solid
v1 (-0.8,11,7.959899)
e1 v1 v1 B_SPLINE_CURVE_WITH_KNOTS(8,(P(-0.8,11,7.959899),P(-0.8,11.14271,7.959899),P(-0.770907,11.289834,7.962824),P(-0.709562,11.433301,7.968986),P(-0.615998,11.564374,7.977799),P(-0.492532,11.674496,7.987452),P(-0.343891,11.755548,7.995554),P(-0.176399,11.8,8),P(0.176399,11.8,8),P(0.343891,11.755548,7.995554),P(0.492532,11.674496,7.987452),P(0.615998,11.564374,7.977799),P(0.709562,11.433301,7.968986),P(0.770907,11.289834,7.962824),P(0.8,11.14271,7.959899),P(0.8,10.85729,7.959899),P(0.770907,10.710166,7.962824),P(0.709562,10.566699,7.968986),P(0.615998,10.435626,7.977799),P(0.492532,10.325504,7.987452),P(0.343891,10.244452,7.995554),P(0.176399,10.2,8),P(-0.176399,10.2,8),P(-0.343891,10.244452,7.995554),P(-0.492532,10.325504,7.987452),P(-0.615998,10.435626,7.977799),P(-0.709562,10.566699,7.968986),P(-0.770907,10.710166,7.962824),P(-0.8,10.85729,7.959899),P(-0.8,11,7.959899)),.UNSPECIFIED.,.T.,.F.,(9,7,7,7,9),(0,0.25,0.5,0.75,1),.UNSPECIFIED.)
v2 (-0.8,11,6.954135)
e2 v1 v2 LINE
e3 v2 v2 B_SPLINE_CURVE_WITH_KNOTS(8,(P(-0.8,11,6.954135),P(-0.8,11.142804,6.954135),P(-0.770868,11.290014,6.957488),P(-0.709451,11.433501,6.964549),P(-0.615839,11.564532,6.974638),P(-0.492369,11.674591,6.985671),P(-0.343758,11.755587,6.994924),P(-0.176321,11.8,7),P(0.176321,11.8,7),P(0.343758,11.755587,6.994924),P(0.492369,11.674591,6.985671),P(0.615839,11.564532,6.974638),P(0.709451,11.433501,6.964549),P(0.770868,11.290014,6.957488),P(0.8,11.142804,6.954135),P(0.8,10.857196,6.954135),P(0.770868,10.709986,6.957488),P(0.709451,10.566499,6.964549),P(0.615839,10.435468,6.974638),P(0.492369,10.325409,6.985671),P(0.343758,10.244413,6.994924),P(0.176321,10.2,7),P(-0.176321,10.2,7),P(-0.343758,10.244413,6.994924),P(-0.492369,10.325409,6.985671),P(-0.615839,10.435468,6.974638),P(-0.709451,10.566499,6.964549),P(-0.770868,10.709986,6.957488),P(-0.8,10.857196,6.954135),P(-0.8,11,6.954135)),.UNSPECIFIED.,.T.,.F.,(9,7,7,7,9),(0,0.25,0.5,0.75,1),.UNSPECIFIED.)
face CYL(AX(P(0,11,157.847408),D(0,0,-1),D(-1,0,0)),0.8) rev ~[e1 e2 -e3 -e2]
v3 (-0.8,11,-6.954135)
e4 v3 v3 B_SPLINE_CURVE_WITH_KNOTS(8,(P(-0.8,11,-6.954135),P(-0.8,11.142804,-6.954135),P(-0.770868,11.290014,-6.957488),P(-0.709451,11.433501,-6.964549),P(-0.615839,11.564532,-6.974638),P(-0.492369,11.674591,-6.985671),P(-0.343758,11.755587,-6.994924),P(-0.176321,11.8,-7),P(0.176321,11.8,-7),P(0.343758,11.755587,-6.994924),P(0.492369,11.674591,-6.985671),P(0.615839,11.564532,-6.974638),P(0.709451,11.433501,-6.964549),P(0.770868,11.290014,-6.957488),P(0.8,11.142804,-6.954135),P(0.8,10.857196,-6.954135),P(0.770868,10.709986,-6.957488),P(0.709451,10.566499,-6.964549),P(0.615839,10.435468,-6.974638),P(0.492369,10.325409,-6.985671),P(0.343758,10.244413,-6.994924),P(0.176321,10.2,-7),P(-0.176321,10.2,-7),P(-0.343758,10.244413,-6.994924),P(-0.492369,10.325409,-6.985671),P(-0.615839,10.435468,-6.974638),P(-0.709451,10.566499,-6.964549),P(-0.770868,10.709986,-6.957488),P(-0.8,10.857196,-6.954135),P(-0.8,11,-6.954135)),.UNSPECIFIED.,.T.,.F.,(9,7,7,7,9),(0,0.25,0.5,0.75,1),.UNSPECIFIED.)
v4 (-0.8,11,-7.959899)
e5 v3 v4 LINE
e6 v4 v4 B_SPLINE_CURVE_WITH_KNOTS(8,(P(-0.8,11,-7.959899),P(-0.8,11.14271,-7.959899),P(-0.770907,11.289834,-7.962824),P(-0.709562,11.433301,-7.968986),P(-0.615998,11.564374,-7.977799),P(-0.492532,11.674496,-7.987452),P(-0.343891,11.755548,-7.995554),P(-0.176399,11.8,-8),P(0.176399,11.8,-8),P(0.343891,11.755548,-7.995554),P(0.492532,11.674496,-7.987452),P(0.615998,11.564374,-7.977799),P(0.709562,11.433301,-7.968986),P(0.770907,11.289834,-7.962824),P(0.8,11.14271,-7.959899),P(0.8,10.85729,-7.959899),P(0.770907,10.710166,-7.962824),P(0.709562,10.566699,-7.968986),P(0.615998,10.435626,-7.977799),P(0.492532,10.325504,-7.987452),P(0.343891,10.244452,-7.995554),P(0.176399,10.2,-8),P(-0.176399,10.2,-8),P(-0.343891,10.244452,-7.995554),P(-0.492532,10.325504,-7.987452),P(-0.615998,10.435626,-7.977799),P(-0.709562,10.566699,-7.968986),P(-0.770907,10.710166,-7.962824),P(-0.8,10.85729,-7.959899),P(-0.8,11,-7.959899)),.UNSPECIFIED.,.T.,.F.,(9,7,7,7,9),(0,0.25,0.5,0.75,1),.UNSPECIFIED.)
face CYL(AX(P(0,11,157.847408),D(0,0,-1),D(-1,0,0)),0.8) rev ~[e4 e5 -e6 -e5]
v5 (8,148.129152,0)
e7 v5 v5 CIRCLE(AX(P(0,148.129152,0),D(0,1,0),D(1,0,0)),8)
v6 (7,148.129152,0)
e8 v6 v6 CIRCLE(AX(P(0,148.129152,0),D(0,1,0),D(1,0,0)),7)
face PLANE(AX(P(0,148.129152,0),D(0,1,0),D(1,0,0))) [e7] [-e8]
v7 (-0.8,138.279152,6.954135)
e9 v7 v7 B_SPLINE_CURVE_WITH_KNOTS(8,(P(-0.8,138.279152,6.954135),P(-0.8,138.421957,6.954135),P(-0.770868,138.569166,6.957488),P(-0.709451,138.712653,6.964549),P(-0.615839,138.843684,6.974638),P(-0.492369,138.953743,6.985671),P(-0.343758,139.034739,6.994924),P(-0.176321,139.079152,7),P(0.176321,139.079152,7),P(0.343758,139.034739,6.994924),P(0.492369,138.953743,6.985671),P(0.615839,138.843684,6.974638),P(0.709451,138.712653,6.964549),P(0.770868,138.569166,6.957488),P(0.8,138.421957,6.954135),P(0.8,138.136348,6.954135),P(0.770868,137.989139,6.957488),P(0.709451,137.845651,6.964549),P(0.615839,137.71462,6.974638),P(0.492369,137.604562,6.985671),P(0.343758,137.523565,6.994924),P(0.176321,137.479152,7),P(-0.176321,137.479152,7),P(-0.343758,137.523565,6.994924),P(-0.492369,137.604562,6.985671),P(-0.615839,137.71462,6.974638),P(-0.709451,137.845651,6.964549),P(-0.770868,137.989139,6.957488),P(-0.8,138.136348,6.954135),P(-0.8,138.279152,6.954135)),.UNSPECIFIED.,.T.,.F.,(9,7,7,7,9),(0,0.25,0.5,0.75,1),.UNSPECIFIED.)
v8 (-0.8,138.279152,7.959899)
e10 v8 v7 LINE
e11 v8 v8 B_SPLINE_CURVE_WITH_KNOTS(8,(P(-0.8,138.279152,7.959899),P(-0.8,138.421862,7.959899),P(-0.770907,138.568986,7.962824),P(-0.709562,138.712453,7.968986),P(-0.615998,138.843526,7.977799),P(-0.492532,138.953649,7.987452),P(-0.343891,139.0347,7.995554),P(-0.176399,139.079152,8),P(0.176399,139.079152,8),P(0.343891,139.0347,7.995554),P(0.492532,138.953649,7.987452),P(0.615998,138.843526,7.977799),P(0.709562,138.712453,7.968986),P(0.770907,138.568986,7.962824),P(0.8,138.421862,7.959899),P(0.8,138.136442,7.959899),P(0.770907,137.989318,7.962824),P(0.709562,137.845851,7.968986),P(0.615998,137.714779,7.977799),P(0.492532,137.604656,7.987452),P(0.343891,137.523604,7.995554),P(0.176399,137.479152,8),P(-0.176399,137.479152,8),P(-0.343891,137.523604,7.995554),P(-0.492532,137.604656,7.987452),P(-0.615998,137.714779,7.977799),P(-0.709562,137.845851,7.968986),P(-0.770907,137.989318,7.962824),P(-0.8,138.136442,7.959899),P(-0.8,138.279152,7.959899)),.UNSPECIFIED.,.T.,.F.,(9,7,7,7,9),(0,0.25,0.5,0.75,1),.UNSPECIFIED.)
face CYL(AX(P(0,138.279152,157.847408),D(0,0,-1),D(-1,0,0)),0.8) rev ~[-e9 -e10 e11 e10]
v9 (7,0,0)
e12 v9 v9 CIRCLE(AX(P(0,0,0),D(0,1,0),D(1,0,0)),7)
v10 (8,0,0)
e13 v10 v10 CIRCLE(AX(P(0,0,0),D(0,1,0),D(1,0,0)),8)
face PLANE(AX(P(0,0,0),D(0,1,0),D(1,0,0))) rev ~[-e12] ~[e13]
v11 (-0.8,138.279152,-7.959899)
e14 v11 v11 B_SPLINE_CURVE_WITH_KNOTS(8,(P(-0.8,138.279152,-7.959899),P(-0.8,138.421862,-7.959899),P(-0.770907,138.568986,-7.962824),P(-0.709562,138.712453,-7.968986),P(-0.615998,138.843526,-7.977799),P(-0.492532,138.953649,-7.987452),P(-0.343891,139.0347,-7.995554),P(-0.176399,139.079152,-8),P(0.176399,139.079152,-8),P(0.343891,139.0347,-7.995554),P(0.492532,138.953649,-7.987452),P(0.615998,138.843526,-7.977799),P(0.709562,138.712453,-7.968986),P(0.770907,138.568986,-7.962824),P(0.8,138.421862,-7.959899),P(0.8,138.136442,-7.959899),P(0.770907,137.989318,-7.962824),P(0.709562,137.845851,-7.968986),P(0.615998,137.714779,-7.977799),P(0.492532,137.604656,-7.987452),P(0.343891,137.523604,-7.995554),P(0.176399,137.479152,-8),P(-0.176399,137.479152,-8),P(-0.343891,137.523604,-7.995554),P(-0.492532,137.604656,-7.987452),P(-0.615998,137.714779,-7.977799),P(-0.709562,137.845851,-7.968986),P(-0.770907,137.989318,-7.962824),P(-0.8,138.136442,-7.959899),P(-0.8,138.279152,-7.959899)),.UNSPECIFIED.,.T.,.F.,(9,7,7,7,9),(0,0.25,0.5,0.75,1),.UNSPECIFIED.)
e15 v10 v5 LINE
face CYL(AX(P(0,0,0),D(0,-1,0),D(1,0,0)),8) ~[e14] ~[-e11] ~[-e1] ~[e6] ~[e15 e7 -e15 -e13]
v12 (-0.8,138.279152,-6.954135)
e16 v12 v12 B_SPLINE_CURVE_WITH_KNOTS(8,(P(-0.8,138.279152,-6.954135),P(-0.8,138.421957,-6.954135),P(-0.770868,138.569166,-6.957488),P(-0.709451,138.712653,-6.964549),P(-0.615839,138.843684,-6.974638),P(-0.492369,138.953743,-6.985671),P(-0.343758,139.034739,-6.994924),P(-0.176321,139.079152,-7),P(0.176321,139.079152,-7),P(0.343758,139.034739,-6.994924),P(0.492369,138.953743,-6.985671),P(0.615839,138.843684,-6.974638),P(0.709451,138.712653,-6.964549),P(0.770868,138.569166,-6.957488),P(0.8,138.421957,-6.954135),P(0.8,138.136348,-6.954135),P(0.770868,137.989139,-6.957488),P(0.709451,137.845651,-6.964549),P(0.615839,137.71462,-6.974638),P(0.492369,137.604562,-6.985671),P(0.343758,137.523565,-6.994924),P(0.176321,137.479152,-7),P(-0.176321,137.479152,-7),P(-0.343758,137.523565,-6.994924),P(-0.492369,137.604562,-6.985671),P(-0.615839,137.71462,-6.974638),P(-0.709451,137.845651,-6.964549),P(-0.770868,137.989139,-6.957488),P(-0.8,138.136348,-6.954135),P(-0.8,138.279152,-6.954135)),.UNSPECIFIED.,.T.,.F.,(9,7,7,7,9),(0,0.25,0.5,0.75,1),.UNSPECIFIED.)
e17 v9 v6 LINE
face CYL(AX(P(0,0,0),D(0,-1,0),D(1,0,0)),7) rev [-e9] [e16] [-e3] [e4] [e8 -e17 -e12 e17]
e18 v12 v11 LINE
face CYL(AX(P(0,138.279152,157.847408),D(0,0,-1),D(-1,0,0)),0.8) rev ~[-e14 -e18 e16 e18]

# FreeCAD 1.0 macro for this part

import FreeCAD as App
import Part
import Sketcher
from FreeCAD import Vector
Q = App.Units.Quantity

doc = App.newDocument("Part")
body = doc.addObject("PartDesign::Body", "Body")

# Sketch on XZ plane
sketch1 = body.newObject("Sketcher::SketchObject", "Sketch")
sketch1.AttachmentSupport = (doc.getObject("XZ_Plane"), [""])
sketch1.MapMode = "FlatFace"
sketch1.addGeometry([
    Part.Circle(Vector(0, 0, 0), Vector(0, 0, 1), 8),
    Part.Circle(Vector(0, 0, 0), Vector(0, 0, 1), 7),
], False)
sketch1.addConstraint([
    Sketcher.Constraint("Coincident", 0, 3, -1, 1),
    Sketcher.Constraint("Coincident", 1, 3, -1, 1),
    Sketcher.Constraint("Diameter", 0, Q("16 mm")),
    Sketcher.Constraint("Diameter", 1, Q("14 mm")),
])
pad1 = body.newObject("PartDesign::Pad", "Pad")
pad1.Profile = sketch1
pad1.Length = 148.129152
pad1.Reversed = True

# Sketch on XY plane
sketch2 = body.newObject("Sketcher::SketchObject", "Sketch001")
sketch2.AttachmentSupport = (doc.getObject("XY_Plane"), [""])
sketch2.MapMode = "FlatFace"
sketch2.AttachmentOffset = App.Placement(Vector(0, 0, 8), App.Rotation())
sketch2.addGeometry([
    Part.Circle(Vector(0, 11, 0), Vector(0, 0, 1), 0.8),
    Part.Circle(Vector(0, 138.3, 0), Vector(0, 0, 1), 0.8),
], False)
sketch2.addConstraint([
    Sketcher.Constraint("Equal", 0, 1),
    Sketcher.Constraint("PointOnObject", 0, 3, -2),
    Sketcher.Constraint("PointOnObject", 1, 3, -2),
    Sketcher.Constraint("Diameter", 0, Q("1.6 mm")),
    Sketcher.Constraint("DistanceY", -1, 1, 0, 3, Q("11 mm")),
    Sketcher.Constraint("DistanceY", -1, 1, 1, 3, Q("138.279152 mm")),
])
doc.recompute()
hole = body.newObject("PartDesign::Hole", "Hole")
hole.Profile = sketch2
hole.ThreadType = "None"
hole.Diameter = 1.6
hole.DepthType = "ThroughAll"

doc.recompute()
